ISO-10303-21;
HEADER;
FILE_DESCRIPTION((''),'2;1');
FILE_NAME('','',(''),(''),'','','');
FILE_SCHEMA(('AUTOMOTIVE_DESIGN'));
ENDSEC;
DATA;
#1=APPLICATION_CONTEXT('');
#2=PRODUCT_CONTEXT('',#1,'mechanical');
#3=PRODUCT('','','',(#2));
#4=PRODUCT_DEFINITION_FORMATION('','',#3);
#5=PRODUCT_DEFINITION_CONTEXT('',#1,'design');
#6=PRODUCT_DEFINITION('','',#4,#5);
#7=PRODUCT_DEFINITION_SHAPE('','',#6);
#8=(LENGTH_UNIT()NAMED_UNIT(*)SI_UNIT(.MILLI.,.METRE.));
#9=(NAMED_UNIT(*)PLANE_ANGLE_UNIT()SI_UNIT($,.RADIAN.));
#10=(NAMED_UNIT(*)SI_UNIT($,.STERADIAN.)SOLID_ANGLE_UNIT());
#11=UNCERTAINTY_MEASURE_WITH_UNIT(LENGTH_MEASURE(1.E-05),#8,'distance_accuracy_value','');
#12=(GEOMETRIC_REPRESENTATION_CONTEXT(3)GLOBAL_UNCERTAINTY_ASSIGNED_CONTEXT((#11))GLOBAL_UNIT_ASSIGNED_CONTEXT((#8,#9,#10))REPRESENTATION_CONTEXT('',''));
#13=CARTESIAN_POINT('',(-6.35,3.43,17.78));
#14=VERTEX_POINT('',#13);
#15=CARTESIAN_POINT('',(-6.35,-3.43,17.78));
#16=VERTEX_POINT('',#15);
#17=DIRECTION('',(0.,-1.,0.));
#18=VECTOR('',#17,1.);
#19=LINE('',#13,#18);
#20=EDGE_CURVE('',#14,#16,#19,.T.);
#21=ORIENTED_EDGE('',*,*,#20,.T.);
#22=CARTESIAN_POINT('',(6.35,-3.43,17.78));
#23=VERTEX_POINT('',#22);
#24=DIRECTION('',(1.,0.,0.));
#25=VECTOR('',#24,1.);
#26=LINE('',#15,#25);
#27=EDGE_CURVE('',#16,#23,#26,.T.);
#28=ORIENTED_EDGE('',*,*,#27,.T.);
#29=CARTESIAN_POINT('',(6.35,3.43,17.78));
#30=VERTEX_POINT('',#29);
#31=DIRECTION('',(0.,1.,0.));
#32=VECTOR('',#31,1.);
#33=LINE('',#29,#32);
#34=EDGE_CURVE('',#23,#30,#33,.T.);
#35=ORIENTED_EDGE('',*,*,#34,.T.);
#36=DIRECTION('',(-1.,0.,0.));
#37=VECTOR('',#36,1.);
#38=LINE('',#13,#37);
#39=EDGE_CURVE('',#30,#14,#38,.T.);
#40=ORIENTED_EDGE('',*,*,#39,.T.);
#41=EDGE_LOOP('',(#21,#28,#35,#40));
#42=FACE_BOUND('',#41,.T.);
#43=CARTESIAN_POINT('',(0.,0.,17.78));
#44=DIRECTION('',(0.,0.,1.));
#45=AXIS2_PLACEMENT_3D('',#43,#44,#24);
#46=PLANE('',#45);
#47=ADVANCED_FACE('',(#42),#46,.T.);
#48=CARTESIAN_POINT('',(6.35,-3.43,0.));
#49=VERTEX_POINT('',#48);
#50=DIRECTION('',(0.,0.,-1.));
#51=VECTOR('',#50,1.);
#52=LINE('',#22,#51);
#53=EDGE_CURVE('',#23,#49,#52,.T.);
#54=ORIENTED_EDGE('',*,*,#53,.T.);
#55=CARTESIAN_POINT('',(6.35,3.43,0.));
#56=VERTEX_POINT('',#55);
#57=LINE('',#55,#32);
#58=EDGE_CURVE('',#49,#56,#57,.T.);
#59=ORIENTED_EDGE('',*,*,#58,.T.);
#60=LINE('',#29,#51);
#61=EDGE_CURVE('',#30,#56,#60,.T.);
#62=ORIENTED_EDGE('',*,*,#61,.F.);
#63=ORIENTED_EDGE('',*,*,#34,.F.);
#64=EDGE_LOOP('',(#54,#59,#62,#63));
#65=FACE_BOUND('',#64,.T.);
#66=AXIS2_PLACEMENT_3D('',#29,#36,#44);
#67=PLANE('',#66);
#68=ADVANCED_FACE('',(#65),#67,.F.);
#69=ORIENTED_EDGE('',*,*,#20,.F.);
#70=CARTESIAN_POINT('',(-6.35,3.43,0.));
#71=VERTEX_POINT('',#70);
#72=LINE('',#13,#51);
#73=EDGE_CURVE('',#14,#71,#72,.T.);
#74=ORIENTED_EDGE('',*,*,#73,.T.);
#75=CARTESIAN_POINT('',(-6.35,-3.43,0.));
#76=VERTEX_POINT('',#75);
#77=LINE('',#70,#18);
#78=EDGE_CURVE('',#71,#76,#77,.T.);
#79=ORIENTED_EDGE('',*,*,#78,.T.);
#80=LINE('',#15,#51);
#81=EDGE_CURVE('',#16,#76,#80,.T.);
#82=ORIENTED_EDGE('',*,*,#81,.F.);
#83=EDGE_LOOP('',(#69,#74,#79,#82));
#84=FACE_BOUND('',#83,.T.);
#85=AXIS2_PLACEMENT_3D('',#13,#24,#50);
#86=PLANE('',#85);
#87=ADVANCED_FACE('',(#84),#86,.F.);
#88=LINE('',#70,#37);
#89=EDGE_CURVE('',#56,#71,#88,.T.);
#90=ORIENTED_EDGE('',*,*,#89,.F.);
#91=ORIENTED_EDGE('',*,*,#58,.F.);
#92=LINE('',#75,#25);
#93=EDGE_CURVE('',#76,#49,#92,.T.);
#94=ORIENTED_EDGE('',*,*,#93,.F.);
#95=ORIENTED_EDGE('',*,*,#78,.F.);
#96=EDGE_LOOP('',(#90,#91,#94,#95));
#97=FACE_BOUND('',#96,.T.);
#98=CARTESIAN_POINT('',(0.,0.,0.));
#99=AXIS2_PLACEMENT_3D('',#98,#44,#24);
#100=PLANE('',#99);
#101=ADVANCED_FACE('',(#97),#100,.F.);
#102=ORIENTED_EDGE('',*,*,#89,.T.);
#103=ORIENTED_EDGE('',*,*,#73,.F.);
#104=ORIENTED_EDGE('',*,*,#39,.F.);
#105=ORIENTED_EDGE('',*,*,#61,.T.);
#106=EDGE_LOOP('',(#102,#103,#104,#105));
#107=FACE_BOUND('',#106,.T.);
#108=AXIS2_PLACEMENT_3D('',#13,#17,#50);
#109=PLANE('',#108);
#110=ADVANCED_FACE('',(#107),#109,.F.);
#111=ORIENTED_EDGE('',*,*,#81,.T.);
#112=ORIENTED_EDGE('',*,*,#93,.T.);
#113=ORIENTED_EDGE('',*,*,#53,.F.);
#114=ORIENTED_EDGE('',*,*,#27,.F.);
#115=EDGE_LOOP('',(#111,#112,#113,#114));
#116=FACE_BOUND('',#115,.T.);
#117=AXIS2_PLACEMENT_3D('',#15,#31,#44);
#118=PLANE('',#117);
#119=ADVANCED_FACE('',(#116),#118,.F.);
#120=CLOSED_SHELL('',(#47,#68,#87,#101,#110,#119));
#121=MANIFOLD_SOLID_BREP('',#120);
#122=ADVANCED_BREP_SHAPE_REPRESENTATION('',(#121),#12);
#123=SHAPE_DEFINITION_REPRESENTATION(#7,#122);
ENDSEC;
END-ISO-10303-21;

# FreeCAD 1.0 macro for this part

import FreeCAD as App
import Part
import Sketcher

V = App.Vector
Q = App.Units.Quantity


def add_polygon(sketch, points):
    """Adds a closed chain of lines whose ends are joined by coincident constraints."""
    first, n = sketch.GeometryCount, len(points)
    for a, b in zip(points, points[1:] + points[:1]):
        sketch.addGeometry(Part.LineSegment(App.Vector(*a, 0), App.Vector(*b, 0)), False)
    for i in range(n):
        sketch.addConstraint(Sketcher.Constraint("Coincident", first + i, 2, first + (i + 1) % n, 1))

doc = App.newDocument("Part")
params = doc.addObject("Spreadsheet::Sheet", "Params")
for row, (alias, value) in enumerate([
    ("sketch1_width", "0.5 in"),
    ("pad1_length", "0.7 in"),
], start=1):
    params.set(f"A{row}", alias)
    params.set(f"B{row}", "=" + value)
    params.setAlias(f"B{row}", alias)

body = doc.addObject("PartDesign::Body", "Body")

# Sketch on XY plane
sketch1 = doc.addObject("Sketcher::SketchObject", "Sketch")
body.addObject(sketch1)
sketch1.AttachmentSupport = (doc.XY_Plane, [""])
sketch1.MapMode = "FlatFace"
add_polygon(sketch1, [(-6, 3), (-6, -3), (6, -3), (6, 3)])  # lines 0-3
sketch1.addConstraint([
    Sketcher.Constraint("Vertical", 0),
    Sketcher.Constraint("Horizontal", 1),
    Sketcher.Constraint("Vertical", 2),
    Sketcher.Constraint("Horizontal", 3),
    Sketcher.Constraint("Symmetric", 0, 2, 2, 2, -1, 1),
    Sketcher.Constraint("DistanceX", 1, 1, 1, 2, Q("0.5 in")),
    Sketcher.Constraint("DistanceY", 0, 2, 0, 1, Q("6.86 mm")),
])
sketch1.setExpression("Constraints[9]", "Params.sketch1_width")
pad1 = doc.addObject("PartDesign::Pad", "Pad")
body.addObject(pad1)
pad1.Profile = sketch1
pad1.setExpression("Length", "Params.pad1_length")

doc.recompute()
